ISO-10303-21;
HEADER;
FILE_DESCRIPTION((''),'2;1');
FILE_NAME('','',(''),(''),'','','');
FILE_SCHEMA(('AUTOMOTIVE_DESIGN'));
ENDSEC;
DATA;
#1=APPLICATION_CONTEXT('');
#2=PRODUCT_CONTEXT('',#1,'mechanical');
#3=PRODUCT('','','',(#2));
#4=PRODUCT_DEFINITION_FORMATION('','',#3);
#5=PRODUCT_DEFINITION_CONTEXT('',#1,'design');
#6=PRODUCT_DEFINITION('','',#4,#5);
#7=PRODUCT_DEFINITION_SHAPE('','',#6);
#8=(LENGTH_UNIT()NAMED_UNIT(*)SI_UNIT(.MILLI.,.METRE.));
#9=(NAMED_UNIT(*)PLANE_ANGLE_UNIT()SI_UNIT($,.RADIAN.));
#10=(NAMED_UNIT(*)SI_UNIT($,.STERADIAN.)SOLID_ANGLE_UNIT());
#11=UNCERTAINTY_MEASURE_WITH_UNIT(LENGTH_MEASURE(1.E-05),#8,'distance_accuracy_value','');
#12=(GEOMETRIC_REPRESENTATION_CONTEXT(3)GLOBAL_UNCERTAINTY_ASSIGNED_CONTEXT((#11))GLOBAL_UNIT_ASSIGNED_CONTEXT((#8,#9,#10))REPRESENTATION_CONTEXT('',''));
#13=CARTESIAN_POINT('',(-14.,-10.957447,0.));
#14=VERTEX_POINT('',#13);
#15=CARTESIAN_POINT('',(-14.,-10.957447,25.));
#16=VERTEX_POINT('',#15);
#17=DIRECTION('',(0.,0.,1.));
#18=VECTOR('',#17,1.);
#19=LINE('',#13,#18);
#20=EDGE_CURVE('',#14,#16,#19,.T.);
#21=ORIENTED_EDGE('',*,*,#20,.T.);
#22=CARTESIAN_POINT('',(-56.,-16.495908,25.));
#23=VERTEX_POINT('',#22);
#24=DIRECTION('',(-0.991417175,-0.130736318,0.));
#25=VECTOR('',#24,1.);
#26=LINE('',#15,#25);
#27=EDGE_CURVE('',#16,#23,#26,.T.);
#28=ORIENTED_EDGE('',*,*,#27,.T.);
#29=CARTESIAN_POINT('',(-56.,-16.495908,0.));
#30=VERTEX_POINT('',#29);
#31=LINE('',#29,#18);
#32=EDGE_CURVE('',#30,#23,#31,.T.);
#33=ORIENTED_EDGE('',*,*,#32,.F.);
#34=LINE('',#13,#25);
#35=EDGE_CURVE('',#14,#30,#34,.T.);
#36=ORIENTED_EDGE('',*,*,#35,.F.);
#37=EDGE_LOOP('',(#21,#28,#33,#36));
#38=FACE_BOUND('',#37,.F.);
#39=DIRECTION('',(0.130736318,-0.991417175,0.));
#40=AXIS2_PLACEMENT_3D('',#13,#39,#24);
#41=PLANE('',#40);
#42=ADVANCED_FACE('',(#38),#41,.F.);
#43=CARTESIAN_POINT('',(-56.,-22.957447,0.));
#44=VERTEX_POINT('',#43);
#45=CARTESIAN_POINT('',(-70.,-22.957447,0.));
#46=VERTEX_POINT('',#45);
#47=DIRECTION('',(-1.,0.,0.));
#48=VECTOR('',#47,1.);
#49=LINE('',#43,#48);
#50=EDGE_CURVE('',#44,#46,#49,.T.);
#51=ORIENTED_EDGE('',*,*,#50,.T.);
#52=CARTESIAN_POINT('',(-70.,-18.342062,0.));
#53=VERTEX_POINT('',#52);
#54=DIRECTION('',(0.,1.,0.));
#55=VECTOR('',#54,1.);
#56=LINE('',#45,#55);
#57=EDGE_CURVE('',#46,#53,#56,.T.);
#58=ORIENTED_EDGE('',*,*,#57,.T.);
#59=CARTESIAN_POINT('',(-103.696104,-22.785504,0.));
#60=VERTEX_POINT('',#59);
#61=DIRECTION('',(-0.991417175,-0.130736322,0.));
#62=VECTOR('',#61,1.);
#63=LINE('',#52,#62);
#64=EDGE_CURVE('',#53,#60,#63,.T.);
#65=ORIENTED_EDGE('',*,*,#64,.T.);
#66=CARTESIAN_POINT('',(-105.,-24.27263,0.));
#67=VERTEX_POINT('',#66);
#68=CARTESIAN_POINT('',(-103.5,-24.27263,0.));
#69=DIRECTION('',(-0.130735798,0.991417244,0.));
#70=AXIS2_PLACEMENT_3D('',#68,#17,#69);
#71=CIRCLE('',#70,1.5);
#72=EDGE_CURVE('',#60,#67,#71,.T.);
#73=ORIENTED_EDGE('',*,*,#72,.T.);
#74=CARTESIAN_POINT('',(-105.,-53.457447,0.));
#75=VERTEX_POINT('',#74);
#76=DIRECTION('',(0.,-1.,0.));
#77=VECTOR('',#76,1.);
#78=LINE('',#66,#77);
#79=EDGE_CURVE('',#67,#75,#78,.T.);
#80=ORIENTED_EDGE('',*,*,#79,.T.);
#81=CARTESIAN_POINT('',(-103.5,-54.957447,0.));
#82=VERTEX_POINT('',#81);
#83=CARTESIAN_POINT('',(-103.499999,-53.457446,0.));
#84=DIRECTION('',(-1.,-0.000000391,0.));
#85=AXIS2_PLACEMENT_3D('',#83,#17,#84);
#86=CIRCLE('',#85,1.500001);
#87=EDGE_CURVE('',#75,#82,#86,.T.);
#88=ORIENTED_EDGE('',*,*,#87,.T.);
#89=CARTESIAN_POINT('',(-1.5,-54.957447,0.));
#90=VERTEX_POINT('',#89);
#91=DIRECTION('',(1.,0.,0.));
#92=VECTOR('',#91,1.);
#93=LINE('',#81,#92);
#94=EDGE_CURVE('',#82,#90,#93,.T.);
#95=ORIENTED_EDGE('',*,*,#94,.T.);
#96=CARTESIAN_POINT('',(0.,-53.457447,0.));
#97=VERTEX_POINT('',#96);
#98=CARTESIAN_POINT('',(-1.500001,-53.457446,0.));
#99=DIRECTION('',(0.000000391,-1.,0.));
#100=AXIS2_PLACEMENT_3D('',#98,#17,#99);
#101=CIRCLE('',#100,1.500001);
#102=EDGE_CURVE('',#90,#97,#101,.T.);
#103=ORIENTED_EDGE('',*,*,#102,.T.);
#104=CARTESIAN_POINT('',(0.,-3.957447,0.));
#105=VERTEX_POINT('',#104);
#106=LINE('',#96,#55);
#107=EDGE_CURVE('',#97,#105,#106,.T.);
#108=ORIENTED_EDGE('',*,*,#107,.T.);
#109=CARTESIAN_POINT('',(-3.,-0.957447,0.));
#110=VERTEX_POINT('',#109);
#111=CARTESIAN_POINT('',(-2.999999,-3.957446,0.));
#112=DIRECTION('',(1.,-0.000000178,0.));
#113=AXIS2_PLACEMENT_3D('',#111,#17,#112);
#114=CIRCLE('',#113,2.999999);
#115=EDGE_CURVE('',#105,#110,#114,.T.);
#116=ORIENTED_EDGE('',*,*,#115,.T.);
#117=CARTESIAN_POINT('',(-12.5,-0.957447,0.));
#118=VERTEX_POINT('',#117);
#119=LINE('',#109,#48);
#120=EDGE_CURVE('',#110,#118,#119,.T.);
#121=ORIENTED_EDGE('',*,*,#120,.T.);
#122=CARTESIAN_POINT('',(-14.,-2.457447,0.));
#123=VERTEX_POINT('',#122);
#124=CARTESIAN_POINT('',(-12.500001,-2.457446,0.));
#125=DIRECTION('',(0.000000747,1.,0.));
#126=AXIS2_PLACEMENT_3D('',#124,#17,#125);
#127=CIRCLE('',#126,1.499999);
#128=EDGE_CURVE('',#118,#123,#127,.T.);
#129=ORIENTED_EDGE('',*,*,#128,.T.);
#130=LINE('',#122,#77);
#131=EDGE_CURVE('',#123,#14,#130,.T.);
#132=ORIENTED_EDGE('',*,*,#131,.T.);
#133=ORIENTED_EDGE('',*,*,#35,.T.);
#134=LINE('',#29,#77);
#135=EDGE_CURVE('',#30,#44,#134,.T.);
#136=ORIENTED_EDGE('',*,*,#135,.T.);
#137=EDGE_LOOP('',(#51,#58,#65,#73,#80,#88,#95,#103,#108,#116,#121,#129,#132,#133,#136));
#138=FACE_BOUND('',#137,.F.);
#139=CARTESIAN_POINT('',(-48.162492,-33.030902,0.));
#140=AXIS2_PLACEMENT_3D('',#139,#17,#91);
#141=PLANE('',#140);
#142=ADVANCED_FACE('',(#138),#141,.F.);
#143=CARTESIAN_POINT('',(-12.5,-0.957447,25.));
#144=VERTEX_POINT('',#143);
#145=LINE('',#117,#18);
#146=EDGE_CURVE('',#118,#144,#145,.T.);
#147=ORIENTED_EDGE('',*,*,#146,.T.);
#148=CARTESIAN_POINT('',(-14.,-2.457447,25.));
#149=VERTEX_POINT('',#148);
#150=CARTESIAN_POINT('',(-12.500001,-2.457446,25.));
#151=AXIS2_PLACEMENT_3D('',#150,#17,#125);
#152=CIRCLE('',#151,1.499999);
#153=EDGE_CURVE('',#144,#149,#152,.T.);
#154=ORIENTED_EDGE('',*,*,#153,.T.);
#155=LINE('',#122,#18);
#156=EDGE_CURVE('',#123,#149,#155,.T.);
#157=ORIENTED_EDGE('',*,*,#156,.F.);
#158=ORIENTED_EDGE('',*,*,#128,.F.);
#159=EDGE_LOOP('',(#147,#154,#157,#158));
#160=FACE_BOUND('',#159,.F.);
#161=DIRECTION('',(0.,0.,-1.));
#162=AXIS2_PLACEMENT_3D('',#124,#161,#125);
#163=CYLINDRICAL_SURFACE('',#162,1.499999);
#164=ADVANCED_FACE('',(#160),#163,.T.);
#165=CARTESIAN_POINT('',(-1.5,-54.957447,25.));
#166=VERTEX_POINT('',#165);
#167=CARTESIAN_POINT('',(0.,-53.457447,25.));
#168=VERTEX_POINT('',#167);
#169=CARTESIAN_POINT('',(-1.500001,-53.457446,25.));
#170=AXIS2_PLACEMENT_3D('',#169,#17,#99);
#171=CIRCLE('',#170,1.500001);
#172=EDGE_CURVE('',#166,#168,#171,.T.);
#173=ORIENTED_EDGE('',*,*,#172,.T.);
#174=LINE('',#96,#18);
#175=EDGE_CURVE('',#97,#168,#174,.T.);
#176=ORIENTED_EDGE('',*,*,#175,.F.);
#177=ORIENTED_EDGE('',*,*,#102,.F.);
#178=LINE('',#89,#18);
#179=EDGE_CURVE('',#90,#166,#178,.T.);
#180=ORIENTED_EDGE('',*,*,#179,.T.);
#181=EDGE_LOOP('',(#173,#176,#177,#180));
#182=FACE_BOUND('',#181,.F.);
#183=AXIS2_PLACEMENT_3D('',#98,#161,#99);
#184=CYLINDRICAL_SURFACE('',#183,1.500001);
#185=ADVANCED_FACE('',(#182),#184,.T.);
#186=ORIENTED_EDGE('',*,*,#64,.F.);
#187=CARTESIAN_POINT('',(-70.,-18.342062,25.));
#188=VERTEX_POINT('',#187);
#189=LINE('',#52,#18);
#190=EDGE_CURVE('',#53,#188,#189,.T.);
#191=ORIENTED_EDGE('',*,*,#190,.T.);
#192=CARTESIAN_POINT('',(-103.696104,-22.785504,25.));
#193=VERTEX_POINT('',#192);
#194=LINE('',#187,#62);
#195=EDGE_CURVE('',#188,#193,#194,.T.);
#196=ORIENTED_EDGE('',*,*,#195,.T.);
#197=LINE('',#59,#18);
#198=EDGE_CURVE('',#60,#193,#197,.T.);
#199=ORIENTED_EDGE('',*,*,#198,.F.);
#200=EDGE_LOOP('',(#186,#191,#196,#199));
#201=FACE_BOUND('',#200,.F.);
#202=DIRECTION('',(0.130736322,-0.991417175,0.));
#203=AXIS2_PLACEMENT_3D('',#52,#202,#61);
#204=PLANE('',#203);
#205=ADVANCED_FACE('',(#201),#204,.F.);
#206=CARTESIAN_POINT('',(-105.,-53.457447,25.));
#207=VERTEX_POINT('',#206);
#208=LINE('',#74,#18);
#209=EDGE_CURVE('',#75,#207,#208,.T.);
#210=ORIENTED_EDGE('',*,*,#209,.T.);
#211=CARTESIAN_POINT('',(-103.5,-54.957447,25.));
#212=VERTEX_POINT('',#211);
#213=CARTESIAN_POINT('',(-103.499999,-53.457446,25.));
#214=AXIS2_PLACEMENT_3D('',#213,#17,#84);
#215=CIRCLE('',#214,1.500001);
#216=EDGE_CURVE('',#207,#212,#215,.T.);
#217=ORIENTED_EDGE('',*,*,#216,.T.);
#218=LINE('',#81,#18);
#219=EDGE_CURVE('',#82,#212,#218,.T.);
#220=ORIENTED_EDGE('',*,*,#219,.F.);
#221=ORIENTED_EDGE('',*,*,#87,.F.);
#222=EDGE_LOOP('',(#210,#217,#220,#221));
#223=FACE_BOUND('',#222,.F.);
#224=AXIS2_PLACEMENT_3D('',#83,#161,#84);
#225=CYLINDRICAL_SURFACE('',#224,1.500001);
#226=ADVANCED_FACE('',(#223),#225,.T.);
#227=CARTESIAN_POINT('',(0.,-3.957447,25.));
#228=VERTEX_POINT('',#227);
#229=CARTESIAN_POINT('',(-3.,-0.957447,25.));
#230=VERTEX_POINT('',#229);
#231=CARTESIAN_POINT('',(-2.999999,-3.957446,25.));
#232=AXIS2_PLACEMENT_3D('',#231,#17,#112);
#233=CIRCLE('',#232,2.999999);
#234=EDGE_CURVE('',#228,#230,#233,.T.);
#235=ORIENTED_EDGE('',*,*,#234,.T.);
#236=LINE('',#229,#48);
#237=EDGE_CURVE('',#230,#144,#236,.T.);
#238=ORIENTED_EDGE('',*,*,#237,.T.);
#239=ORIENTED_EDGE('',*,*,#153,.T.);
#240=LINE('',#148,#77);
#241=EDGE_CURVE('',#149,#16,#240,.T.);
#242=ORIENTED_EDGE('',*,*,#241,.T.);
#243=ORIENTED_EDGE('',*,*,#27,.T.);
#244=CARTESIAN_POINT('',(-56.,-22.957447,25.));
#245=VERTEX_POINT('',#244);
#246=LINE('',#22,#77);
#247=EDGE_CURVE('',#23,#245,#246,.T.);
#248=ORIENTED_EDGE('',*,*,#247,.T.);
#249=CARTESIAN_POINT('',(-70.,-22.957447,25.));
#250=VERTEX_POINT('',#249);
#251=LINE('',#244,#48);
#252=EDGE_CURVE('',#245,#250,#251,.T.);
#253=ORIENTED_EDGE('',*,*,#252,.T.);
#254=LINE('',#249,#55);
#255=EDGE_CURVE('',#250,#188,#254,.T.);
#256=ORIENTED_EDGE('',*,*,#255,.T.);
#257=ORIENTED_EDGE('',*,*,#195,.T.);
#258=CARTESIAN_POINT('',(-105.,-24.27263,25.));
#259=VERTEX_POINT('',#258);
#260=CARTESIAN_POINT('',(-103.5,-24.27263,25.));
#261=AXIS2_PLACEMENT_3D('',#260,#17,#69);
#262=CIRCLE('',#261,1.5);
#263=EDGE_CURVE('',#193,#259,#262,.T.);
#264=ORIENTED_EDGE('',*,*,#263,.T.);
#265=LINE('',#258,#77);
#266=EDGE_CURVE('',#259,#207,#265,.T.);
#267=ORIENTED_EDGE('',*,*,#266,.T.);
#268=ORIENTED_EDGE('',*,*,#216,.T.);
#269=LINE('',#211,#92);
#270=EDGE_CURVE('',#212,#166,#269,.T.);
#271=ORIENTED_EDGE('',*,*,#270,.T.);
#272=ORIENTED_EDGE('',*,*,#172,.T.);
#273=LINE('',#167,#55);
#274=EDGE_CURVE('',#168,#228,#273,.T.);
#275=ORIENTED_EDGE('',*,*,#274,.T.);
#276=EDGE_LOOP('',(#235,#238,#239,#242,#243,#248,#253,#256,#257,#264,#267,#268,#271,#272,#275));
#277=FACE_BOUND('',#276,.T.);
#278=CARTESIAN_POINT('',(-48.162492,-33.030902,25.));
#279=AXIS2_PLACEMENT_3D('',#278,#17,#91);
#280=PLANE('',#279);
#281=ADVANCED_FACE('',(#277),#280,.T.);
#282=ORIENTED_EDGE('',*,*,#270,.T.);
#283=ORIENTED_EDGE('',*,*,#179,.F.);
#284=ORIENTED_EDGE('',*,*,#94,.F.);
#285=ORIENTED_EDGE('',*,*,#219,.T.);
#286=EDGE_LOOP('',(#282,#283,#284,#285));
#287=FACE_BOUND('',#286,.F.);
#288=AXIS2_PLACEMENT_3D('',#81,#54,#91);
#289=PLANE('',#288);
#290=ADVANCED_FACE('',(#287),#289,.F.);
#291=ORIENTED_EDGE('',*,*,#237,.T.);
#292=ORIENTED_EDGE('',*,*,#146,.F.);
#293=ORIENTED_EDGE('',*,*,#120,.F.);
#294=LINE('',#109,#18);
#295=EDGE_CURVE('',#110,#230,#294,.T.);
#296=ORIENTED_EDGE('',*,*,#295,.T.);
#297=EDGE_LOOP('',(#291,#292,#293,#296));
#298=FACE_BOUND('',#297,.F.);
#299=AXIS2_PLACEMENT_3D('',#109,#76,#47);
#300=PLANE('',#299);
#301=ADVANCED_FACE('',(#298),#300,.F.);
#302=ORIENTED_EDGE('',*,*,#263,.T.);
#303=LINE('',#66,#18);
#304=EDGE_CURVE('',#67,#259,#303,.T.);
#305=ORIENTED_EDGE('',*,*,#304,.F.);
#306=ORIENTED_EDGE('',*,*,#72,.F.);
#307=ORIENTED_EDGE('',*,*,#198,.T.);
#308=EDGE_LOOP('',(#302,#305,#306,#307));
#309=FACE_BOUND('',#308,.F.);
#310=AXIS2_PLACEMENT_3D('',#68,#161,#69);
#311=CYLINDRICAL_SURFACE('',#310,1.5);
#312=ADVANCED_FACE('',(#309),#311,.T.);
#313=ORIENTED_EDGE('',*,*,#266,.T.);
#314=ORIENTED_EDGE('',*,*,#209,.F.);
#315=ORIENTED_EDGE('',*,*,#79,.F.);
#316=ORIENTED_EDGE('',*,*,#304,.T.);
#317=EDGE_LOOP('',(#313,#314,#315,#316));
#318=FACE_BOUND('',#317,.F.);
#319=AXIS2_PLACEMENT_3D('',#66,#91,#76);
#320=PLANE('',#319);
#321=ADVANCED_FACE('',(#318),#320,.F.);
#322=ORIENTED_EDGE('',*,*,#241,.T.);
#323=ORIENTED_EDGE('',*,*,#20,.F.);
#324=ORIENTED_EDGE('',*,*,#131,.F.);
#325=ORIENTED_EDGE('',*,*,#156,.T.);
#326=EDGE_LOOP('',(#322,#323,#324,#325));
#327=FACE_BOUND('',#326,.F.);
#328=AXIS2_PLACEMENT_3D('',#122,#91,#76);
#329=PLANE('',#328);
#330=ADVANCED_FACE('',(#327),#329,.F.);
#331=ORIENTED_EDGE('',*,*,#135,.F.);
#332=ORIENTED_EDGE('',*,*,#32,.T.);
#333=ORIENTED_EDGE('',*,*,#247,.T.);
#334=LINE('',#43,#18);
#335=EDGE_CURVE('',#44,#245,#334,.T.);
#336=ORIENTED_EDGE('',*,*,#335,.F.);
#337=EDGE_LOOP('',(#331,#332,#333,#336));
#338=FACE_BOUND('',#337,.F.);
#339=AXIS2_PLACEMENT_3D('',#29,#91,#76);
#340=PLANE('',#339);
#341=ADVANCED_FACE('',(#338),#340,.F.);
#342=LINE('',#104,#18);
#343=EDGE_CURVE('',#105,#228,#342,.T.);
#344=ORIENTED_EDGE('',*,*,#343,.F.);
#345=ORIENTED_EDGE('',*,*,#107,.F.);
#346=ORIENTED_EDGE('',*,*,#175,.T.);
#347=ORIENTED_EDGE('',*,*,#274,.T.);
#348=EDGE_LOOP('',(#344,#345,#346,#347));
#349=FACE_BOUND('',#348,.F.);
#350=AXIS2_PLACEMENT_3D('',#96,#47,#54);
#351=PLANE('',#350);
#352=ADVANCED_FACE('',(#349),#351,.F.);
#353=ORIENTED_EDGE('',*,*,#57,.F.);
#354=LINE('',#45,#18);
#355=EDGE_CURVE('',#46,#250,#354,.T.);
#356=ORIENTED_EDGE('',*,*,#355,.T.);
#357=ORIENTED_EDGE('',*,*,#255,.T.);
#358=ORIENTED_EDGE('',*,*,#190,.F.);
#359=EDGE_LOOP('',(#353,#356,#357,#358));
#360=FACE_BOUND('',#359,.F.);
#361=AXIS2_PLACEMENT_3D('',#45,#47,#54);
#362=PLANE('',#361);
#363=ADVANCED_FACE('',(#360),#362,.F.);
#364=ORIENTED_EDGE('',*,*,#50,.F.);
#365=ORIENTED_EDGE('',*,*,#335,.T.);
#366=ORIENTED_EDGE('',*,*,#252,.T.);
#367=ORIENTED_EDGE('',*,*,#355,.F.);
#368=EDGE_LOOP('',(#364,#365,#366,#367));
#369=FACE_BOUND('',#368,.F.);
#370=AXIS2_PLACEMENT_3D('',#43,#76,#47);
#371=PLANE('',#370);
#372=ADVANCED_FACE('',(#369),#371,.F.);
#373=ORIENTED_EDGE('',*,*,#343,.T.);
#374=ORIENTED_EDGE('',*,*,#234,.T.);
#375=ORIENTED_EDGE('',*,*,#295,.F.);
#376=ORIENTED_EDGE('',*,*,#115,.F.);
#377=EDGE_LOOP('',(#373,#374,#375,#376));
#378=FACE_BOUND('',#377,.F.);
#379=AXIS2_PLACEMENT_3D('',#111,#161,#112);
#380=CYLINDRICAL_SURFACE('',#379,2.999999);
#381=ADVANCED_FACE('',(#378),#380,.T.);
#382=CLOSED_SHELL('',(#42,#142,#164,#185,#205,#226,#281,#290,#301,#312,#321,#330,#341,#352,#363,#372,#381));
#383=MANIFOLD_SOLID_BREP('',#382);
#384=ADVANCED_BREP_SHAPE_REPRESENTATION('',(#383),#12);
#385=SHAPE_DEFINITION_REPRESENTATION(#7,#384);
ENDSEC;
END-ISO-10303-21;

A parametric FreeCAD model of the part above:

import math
import FreeCAD as App
import Part
import Sketcher

V = App.Vector
Q = App.Units.Quantity

doc = App.newDocument("Part")
params = doc.addObject("Spreadsheet::Sheet", "Params")
for row, (alias, value) in enumerate([
    ("sketch1_radius", "2.999999 mm"),
    ("sketch1_radius2", "1.500001 mm"),
    ("sketch1_width", "102 mm"),
    ("sketch1_width2", "14 mm"),
    ("sketch1_width3", "9.5 mm"),
    ("pad1_length", "25 mm"),
], start=1):
    params.set(f"A{row}", alias)
    params.set(f"B{row}", "=" + value)
    params.setAlias(f"B{row}", alias)

body = doc.addObject("PartDesign::Body", "Body")

sketch1 = body.newObject("Sketcher::SketchObject", "Sketch")
sketch1.AttachmentSupport = (doc.getObject("XY_Plane"), [""])
sketch1.MapMode = "FlatFace"
sketch1.addGeometry(Part.ArcOfCircle(Part.Circle(V(-103.5, -53.5, 0), V(0, 0, 1), 1.5), math.radians(-180), math.radians(-90)), False)
sketch1.addGeometry(Part.LineSegment(V(-103.5, -55, 0), V(-1.5, -55, 0)), False)
sketch1.addGeometry(Part.ArcOfCircle(Part.Circle(V(-1.5, -53.5, 0), V(0, 0, 1), 1.5), math.radians(-90), math.radians(0)), False)
sketch1.addGeometry(Part.LineSegment(V(0, -53.5, 0), V(0, -4, 0)), False)
sketch1.addGeometry(Part.ArcOfCircle(Part.Circle(V(-3, -4, 0), V(0, 0, 1), 3), math.radians(0), math.radians(90)), False)
sketch1.addGeometry(Part.LineSegment(V(-3, -1, 0), V(-12.5, -1, 0)), False)
sketch1.addGeometry(Part.ArcOfCircle(Part.Circle(V(-12.5, -2.5, 0), V(0, 0, 1), 1.5), math.radians(90), math.radians(180)), False)
sketch1.addGeometry(Part.LineSegment(V(-14, -2.5, 0), V(-14, -11, 0)), False)
sketch1.addGeometry(Part.LineSegment(V(-14, -11, 0), V(-56, -16.5, 0)), False)
sketch1.addGeometry(Part.LineSegment(V(-56, -16.5, 0), V(-56, -23, 0)), False)
sketch1.addGeometry(Part.LineSegment(V(-56, -23, 0), V(-70, -23, 0)), False)
sketch1.addGeometry(Part.LineSegment(V(-70, -23, 0), V(-70, -18.3, 0)), False)
sketch1.addGeometry(Part.LineSegment(V(-70, -18.3, 0), V(-103.7, -22.8, 0)), False)
sketch1.addGeometry(Part.ArcOfCircle(Part.Circle(V(-103.5, -24.3, 0), V(0, 0, 1), 1.5), math.radians(98), math.radians(180)), False)
sketch1.addGeometry(Part.LineSegment(V(-105, -24.3, 0), V(-105, -53.5, 0)), False)
sketch1.addConstraint(Sketcher.Constraint("Tangent", 0, 2, 1, 1))
sketch1.addConstraint(Sketcher.Constraint("Tangent", 1, 2, 2, 1))
sketch1.addConstraint(Sketcher.Constraint("Tangent", 2, 2, 3, 1))
sketch1.addConstraint(Sketcher.Constraint("Tangent", 3, 2, 4, 1))
sketch1.addConstraint(Sketcher.Constraint("Tangent", 4, 2, 5, 1))
sketch1.addConstraint(Sketcher.Constraint("Tangent", 5, 2, 6, 1))
sketch1.addConstraint(Sketcher.Constraint("Tangent", 6, 2, 7, 1))
sketch1.addConstraint(Sketcher.Constraint("Coincident", 7, 2, 8, 1))
sketch1.addConstraint(Sketcher.Constraint("Coincident", 8, 2, 9, 1))
sketch1.addConstraint(Sketcher.Constraint("Coincident", 9, 2, 10, 1))
sketch1.addConstraint(Sketcher.Constraint("Coincident", 10, 2, 11, 1))
sketch1.addConstraint(Sketcher.Constraint("Coincident", 11, 2, 12, 1))
sketch1.addConstraint(Sketcher.Constraint("Tangent", 12, 2, 13, 1))
sketch1.addConstraint(Sketcher.Constraint("Tangent", 13, 2, 14, 1))
sketch1.addConstraint(Sketcher.Constraint("Tangent", 14, 2, 0, 1))
sketch1.addConstraint(Sketcher.Constraint("Horizontal", 1))
sketch1.addConstraint(Sketcher.Constraint("Vertical", 3))
sketch1.addConstraint(Sketcher.Constraint("Horizontal", 5))
sketch1.addConstraint(Sketcher.Constraint("Vertical", 7))
sketch1.addConstraint(Sketcher.Constraint("Vertical", 9))
sketch1.addConstraint(Sketcher.Constraint("Horizontal", 10))
sketch1.addConstraint(Sketcher.Constraint("Vertical", 11))
sketch1.addConstraint(Sketcher.Constraint("Vertical", 14))
sketch1.addConstraint(Sketcher.Constraint("Equal", 0, 2))
sketch1.addConstraint(Sketcher.Constraint("Equal", 2, 6))
sketch1.addConstraint(Sketcher.Constraint("Equal", 6, 13))
sketch1.addConstraint(Sketcher.Constraint("PointOnObject", 2, 2, -2))
sketch1.addConstraint(Sketcher.Constraint("Parallel", 8, 12))
sketch1.addConstraint(Sketcher.Constraint("Radius", 4, Q("2.999999 mm")))
sketch1.addConstraint(Sketcher.Constraint("Radius", 0, Q("1.500001 mm")))
sketch1.addConstraint(Sketcher.Constraint("DistanceX", 1, 1, 1, 2, Q("102 mm")))
sketch1.addConstraint(Sketcher.Constraint("DistanceX", 10, 2, 10, 1, Q("14 mm")))
sketch1.addConstraint(Sketcher.Constraint("DistanceX", 5, 2, 5, 1, Q("9.5 mm")))
sketch1.addConstraint(Sketcher.Constraint("DistanceY", 3, 1, 3, 2, Q("49.5 mm")))
sketch1.addConstraint(Sketcher.Constraint("DistanceY", 7, 2, 7, 1, Q("8.5 mm")))
sketch1.addConstraint(Sketcher.Constraint("DistanceX", 8, 2, -1, 1, Q("56 mm")))
sketch1.addConstraint(Sketcher.Constraint("DistanceY", 9, 2, 7, 2, Q("12 mm")))
sketch1.addConstraint(Sketcher.Constraint("Distance", 8, Q("42.363599 mm")))
sketch1.addConstraint(Sketcher.Constraint("DistanceY", 11, 1, 11, 2, Q("4.615385 mm")))
sketch1.addConstraint(Sketcher.Constraint("DistanceY", 13, 3, -1, 1, Q("24.27263 mm")))
sketch1.setExpression("Constraints[28]", "Params.sketch1_radius")
sketch1.setExpression("Constraints[29]", "Params.sketch1_radius2")
sketch1.setExpression("Constraints[30]", "Params.sketch1_width")
sketch1.setExpression("Constraints[31]", "Params.sketch1_width2")
sketch1.setExpression("Constraints[32]", "Params.sketch1_width3")
pad1 = body.newObject("PartDesign::Pad", "Pad")
pad1.Profile = sketch1
pad1.setExpression("Length", "Params.pad1_length")

doc.recompute()
